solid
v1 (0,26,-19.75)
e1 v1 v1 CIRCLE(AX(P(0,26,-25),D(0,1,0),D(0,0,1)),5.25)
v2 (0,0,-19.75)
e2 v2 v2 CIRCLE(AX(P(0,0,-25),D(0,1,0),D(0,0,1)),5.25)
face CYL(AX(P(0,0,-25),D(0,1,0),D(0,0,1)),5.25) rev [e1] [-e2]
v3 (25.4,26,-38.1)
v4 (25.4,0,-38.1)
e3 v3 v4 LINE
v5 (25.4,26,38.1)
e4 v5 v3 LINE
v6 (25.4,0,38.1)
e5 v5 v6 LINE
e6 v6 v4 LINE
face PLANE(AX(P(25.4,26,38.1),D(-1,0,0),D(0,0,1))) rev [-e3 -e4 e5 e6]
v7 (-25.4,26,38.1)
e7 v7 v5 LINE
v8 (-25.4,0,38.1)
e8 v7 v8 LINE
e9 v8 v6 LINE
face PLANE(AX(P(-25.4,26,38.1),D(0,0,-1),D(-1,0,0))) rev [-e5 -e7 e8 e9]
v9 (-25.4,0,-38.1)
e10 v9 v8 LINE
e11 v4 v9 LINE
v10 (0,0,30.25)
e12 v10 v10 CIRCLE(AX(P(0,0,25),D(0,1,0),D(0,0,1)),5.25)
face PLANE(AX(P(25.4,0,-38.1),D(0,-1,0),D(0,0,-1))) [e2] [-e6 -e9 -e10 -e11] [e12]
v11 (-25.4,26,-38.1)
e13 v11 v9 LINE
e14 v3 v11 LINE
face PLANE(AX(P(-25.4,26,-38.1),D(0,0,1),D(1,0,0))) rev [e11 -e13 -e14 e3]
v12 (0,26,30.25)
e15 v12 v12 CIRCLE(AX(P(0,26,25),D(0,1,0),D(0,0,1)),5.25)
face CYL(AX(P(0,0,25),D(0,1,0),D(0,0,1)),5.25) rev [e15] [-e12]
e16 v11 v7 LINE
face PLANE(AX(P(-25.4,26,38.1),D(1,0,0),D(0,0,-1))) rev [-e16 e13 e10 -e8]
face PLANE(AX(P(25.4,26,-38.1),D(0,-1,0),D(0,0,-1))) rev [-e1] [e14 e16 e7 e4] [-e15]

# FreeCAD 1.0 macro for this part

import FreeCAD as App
import Part
import Sketcher
from FreeCAD import Vector
Q = App.Units.Quantity

doc = App.newDocument("Part")
body = doc.addObject("PartDesign::Body", "Body")

sketch1 = body.newObject("Sketcher::SketchObject", "Sketch")
sketch1.AttachmentSupport = (doc.getObject("XZ_Plane"), [""])
sketch1.MapMode = "FlatFace"
sketch1.addGeometry(Part.LineSegment(Vector(-25, -38, 0), Vector(-25, 38, 0)), False)
sketch1.addGeometry(Part.LineSegment(Vector(-25, 38, 0), Vector(25, 38, 0)), False)
sketch1.addGeometry(Part.LineSegment(Vector(25, 38, 0), Vector(25, -38, 0)), False)
sketch1.addGeometry(Part.LineSegment(Vector(25, -38, 0), Vector(-25, -38, 0)), False)
sketch1.addConstraint(Sketcher.Constraint("Coincident", 0, 2, 1, 1))
sketch1.addConstraint(Sketcher.Constraint("Coincident", 1, 2, 2, 1))
sketch1.addConstraint(Sketcher.Constraint("Coincident", 2, 2, 3, 1))
sketch1.addConstraint(Sketcher.Constraint("Coincident", 3, 2, 0, 1))
sketch1.addConstraint(Sketcher.Constraint("Vertical", 0))
sketch1.addConstraint(Sketcher.Constraint("Horizontal", 1))
sketch1.addConstraint(Sketcher.Constraint("Vertical", 2))
sketch1.addConstraint(Sketcher.Constraint("Horizontal", 3))
sketch1.addConstraint(Sketcher.Constraint("Symmetric", 0, 2, 2, 2, -1, 1))
sketch1.addConstraint(Sketcher.Constraint("DistanceX", 1, 1, 1, 2, Q("50.8 mm")))
sketch1.addConstraint(Sketcher.Constraint("DistanceY", 0, 1, 0, 2, Q("76.2 mm")))
pad1 = body.newObject("PartDesign::Pad", "Pad")
pad1.Profile = sketch1
pad1.Length = 26
pad1.Reversed = True

sketch2 = body.newObject("Sketcher::SketchObject", "Sketch001")
sketch2.AttachmentSupport = (doc.getObject("XZ_Plane"), [""])
sketch2.MapMode = "FlatFace"
sketch2.AttachmentOffset = App.Placement(Vector(0, 0, -26), App.Rotation())
sketch2.addGeometry(Part.Circle(Vector(0, -25, 0), Vector(0, 0, 1), 5), False)
sketch2.addGeometry(Part.Circle(Vector(0, 25, 0), Vector(0, 0, 1), 5), False)
sketch2.addConstraint(Sketcher.Constraint("Equal", 0, 1))
sketch2.addConstraint(Sketcher.Constraint("Symmetric", 0, 3, 1, 3, -1, 1))
sketch2.addConstraint(Sketcher.Constraint("PointOnObject", 0, 3, -2))
sketch2.addConstraint(Sketcher.Constraint("Diameter", 0, Q("10.5 mm")))
sketch2.addConstraint(Sketcher.Constraint("DistanceY", 0, 3, -1, 1, Q("25 mm")))
pocket1 = body.newObject("PartDesign::Pocket", "Pocket")
pocket1.Profile = sketch2
pocket1.Type = "ThroughAll"
pocket1.Reversed = True

doc.recompute()
